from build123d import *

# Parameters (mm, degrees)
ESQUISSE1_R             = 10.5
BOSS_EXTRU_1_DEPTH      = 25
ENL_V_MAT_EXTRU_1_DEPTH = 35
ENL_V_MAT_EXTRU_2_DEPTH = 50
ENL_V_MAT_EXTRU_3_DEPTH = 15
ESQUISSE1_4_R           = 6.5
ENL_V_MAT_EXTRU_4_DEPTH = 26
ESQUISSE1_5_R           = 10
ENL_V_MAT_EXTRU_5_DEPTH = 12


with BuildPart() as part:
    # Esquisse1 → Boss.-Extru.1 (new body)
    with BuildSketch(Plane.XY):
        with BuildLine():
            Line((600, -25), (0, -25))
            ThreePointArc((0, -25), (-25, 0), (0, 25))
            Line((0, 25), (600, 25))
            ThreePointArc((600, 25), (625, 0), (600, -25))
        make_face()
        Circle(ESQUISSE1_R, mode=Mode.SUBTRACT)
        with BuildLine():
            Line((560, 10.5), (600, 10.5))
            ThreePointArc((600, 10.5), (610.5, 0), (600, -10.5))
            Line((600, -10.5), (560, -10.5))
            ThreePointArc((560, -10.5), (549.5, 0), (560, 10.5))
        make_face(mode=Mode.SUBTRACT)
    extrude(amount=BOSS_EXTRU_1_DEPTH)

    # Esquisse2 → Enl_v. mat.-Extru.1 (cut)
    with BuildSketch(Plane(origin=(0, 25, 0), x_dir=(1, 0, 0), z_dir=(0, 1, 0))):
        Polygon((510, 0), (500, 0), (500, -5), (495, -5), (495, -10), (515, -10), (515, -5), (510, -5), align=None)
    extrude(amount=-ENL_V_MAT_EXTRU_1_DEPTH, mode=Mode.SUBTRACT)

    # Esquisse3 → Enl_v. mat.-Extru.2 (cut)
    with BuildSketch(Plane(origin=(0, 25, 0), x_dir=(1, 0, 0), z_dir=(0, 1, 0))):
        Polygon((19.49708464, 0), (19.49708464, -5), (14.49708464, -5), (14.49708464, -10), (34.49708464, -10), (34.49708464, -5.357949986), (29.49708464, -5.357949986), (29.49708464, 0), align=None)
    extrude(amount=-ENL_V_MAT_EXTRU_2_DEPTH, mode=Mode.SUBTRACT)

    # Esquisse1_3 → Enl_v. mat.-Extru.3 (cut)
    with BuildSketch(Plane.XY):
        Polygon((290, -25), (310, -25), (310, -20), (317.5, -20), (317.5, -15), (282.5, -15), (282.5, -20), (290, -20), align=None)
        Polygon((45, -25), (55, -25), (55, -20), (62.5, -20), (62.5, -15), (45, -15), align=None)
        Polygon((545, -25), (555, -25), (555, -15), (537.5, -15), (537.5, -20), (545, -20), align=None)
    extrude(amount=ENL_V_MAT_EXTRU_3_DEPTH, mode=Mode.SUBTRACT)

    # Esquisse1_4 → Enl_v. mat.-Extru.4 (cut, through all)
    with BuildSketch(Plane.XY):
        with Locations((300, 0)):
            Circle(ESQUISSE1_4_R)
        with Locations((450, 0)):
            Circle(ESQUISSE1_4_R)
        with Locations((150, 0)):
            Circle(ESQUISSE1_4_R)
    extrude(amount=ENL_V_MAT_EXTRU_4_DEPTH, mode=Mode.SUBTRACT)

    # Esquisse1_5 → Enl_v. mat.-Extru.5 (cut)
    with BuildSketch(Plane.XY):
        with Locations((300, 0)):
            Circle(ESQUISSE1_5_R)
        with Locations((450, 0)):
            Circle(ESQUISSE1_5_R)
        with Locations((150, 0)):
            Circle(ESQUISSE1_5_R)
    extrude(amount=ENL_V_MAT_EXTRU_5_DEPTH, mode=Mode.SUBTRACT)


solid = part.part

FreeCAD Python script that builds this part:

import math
import FreeCAD as App
import Part
import Sketcher
from FreeCAD import Vector

doc = App.newDocument("Part")
params = doc.addObject("Spreadsheet::Sheet", "Params")
for row, (alias, value) in enumerate([
    ("sketch1_diameter", "21 mm"),
    ("sketch1_radius", "25 mm"),
    ("sketch1_width", "600 mm"),
    ("sketch1_width2", "40 mm"),
    ("pad1_length", "25 mm"),
    ("sketch2_width", "10 mm"),
    ("sketch2_width2", "5 mm"),
    ("pocket1_length", "35 mm"),
    ("sketch3_width", "5 mm"),
    ("sketch3_width2", "20 mm"),
    ("pocket2_length", "50 mm"),
    ("sketch4_width", "20 mm"),
    ("sketch4_width2", "35 mm"),
    ("sketch4_width3", "10 mm"),
    ("pocket3_length", "15 mm"),
    ("sketch5_diameter", "13 mm"),
    ("sketch6_diameter", "20 mm"),
    ("pocket5_length", "12 mm"),
], start=1):
    params.set(f"A{row}", alias)
    params.set(f"B{row}", "=" + value)
    params.setAlias(f"B{row}", alias)

body = doc.addObject("PartDesign::Body", "Body")

# Sketch on XY plane
sketch1 = doc.addObject("Sketcher::SketchObject", "Sketch")
body.addObject(sketch1)
sketch1.AttachmentSupport = (doc.XY_Plane, [""])
sketch1.MapMode = "FlatFace"
sketch1.addGeometry([
    Part.LineSegment(Vector(0, -25, 0), Vector(600, -25, 0)),  # 0
    Part.ArcOfCircle(Part.Circle(Vector(600, 0, 0), Vector(0, 0, 1), 25), math.radians(-90), math.radians(90)),  # 1
    Part.LineSegment(Vector(600, 25, 0), Vector(0, 25, 0)),  # 2
    Part.ArcOfCircle(Part.Circle(Vector(0, 0, 0), Vector(0, 0, 1), 25), math.radians(90), math.radians(270)),  # 3
    Part.LineSegment(Vector(560, 10.5, 0), Vector(600, 10.5, 0)),  # 4
    Part.ArcOfCircle(Part.Circle(Vector(600, 0, 0), Vector(0, 0, 1), 10.5), math.radians(-90), math.radians(90)),  # 5
    Part.LineSegment(Vector(600, -10.5, 0), Vector(560, -10.5, 0)),  # 6
    Part.ArcOfCircle(Part.Circle(Vector(560, 0, 0), Vector(0, 0, 1), 10.5), math.radians(90), math.radians(270)),  # 7
    Part.Circle(Vector(0, 0, 0), Vector(0, 0, 1), 10.5),  # 8
], False)
sketch1.addConstraint([
    Sketcher.Constraint("Tangent", 0, 2, 1, 1),
    Sketcher.Constraint("Tangent", 1, 2, 2, 1),
    Sketcher.Constraint("Tangent", 2, 2, 3, 1),
    Sketcher.Constraint("Tangent", 3, 2, 0, 1),
    Sketcher.Constraint("Tangent", 4, 2, 5, 2),
    Sketcher.Constraint("Tangent", 5, 1, 6, 1),
    Sketcher.Constraint("Tangent", 6, 2, 7, 2),
    Sketcher.Constraint("Tangent", 7, 1, 4, 1),
    Sketcher.Constraint("Horizontal", 0),
    Sketcher.Constraint("Horizontal", 2),
    Sketcher.Constraint("Horizontal", 4),
    Sketcher.Constraint("Horizontal", 6),
    Sketcher.Constraint("Coincident", 3, 3, -1, 1),
    Sketcher.Constraint("Coincident", 8, 3, -1, 1),
    Sketcher.Constraint("Coincident", 5, 3, 1, 3),
    Sketcher.Constraint("Equal", 7, 8),
    Sketcher.Constraint("Diameter", 8, 21.0),
    Sketcher.Constraint("Radius", 1, 25.0),
    Sketcher.Constraint("DistanceX", 0, 1, 0, 2, 600.0),
    Sketcher.Constraint("DistanceX", 4, 1, 4, 2, 40.0),
])
sketch1.setExpression("Constraints[16]", "Params.sketch1_diameter")
sketch1.setExpression("Constraints[17]", "Params.sketch1_radius")
sketch1.setExpression("Constraints[18]", "Params.sketch1_width")
sketch1.setExpression("Constraints[19]", "Params.sketch1_width2")
pad1 = doc.addObject("PartDesign::Pad", "Pad")
body.addObject(pad1)
pad1.Profile = sketch1
pad1.setExpression("Length", "Params.pad1_length")

# Sketch on XZ plane
sketch2 = doc.addObject("Sketcher::SketchObject", "Sketch001")
body.addObject(sketch2)
sketch2.AttachmentSupport = (doc.XZ_Plane, [""])
sketch2.MapMode = "FlatFace"
sketch2.AttachmentOffset = App.Placement(Vector(0, 0, -25), App.Rotation())
sketch2.addGeometry([
    Part.LineSegment(Vector(510, 0, 0), Vector(500, 0, 0)),  # 0
    Part.LineSegment(Vector(500, 0, 0), Vector(500, 5, 0)),  # 1
    Part.LineSegment(Vector(500, 5, 0), Vector(495, 5, 0)),  # 2
    Part.LineSegment(Vector(495, 5, 0), Vector(495, 10, 0)),  # 3
    Part.LineSegment(Vector(495, 10, 0), Vector(515, 10, 0)),  # 4
    Part.LineSegment(Vector(515, 10, 0), Vector(515, 5, 0)),  # 5
    Part.LineSegment(Vector(515, 5, 0), Vector(510, 5, 0)),  # 6
    Part.LineSegment(Vector(510, 5, 0), Vector(510, 0, 0)),  # 7
], False)
sketch2.addConstraint([
    Sketcher.Constraint("Coincident", 0, 2, 1, 1),
    Sketcher.Constraint("Coincident", 1, 2, 2, 1),
    Sketcher.Constraint("Coincident", 2, 2, 3, 1),
    Sketcher.Constraint("Coincident", 3, 2, 4, 1),
    Sketcher.Constraint("Coincident", 4, 2, 5, 1),
    Sketcher.Constraint("Coincident", 5, 2, 6, 1),
    Sketcher.Constraint("Coincident", 6, 2, 7, 1),
    Sketcher.Constraint("Coincident", 7, 2, 0, 1),
    Sketcher.Constraint("Horizontal", 0),
    Sketcher.Constraint("Vertical", 1),
    Sketcher.Constraint("Horizontal", 2),
    Sketcher.Constraint("Vertical", 3),
    Sketcher.Constraint("Horizontal", 4),
    Sketcher.Constraint("Vertical", 5),
    Sketcher.Constraint("Horizontal", 6),
    Sketcher.Constraint("Vertical", 7),
    Sketcher.Constraint("PointOnObject", 0, 2, -1),
    Sketcher.Constraint("Horizontal", 2, 2, 5, 2),
    Sketcher.Constraint("Equal", 2, 6),
    Sketcher.Constraint("Equal", 6, 1),
    Sketcher.Constraint("Equal", 1, 3),
    Sketcher.Constraint("DistanceX", 0, 2, 0, 1, 10.0),
    Sketcher.Constraint("DistanceX", 2, 2, 2, 1, 5.0),
    Sketcher.Constraint("DistanceX", -1, 1, 0, 2, 500.0),
])
sketch2.setExpression("Constraints[21]", "Params.sketch2_width")
sketch2.setExpression("Constraints[22]", "Params.sketch2_width2")
pocket1 = doc.addObject("PartDesign::Pocket", "Pocket")
body.addObject(pocket1)
pocket1.Profile = sketch2
pocket1.setExpression("Length", "Params.pocket1_length")
pocket1.Reversed = True

# Sketch on XZ plane
sketch3 = doc.addObject("Sketcher::SketchObject", "Sketch002")
body.addObject(sketch3)
sketch3.AttachmentSupport = (doc.XZ_Plane, [""])
sketch3.MapMode = "FlatFace"
sketch3.AttachmentOffset = App.Placement(Vector(0, 0, -25), App.Rotation())
sketch3.addGeometry([
    Part.LineSegment(Vector(19.497085, 0, 0), Vector(19.497085, 5, 0)),  # 0
    Part.LineSegment(Vector(19.497085, 5, 0), Vector(14.497085, 5, 0)),  # 1
    Part.LineSegment(Vector(14.497085, 5, 0), Vector(14.497085, 10, 0)),  # 2
    Part.LineSegment(Vector(14.497085, 10, 0), Vector(34.497085, 10, 0)),  # 3
    Part.LineSegment(Vector(34.497085, 10, 0), Vector(34.497085, 5.35795, 0)),  # 4
    Part.LineSegment(Vector(34.497085, 5.35795, 0), Vector(29.497085, 5.35795, 0)),  # 5
    Part.LineSegment(Vector(29.497085, 5.35795, 0), Vector(29.497085, 0, 0)),  # 6
    Part.LineSegment(Vector(29.497085, 0, 0), Vector(19.497085, 0, 0)),  # 7
], False)
sketch3.addConstraint([
    Sketcher.Constraint("Coincident", 0, 2, 1, 1),
    Sketcher.Constraint("Coincident", 1, 2, 2, 1),
    Sketcher.Constraint("Coincident", 2, 2, 3, 1),
    Sketcher.Constraint("Coincident", 3, 2, 4, 1),
    Sketcher.Constraint("Coincident", 4, 2, 5, 1),
    Sketcher.Constraint("Coincident", 5, 2, 6, 1),
    Sketcher.Constraint("Coincident", 6, 2, 7, 1),
    Sketcher.Constraint("Coincident", 7, 2, 0, 1),
    Sketcher.Constraint("Vertical", 0),
    Sketcher.Constraint("Horizontal", 1),
    Sketcher.Constraint("Vertical", 2),
    Sketcher.Constraint("Horizontal", 3),
    Sketcher.Constraint("Vertical", 4),
    Sketcher.Constraint("Horizontal", 5),
    Sketcher.Constraint("Vertical", 6),
    Sketcher.Constraint("Horizontal", 7),
    Sketcher.Constraint("PointOnObject", 6, 2, -1),
    Sketcher.Constraint("Equal", 1, 5),
    Sketcher.Constraint("Equal", 5, 0),
    Sketcher.Constraint("Equal", 0, 2),
    Sketcher.Constraint("DistanceX", 1, 2, 1, 1, 5.0),
    Sketcher.Constraint("DistanceX", 3, 1, 3, 2, 20.0),
    Sketcher.Constraint("DistanceY", 4, 2, 4, 1, 4.64205),
    Sketcher.Constraint("DistanceX", -1, 1, 0, 2, 19.497085),
])
sketch3.setExpression("Constraints[20]", "Params.sketch3_width")
sketch3.setExpression("Constraints[21]", "Params.sketch3_width2")
pocket2 = doc.addObject("PartDesign::Pocket", "Pocket001")
body.addObject(pocket2)
pocket2.Profile = sketch3
pocket2.setExpression("Length", "Params.pocket2_length")
pocket2.Reversed = True

# Sketch on XY plane
sketch4 = doc.addObject("Sketcher::SketchObject", "Sketch003")
body.addObject(sketch4)
sketch4.AttachmentSupport = (doc.XY_Plane, [""])
sketch4.MapMode = "FlatFace"
sketch4.addGeometry([
    Part.LineSegment(Vector(290, -25, 0), Vector(310, -25, 0)),  # 0
    Part.LineSegment(Vector(310, -25, 0), Vector(310, -20, 0)),  # 1
    Part.LineSegment(Vector(310, -20, 0), Vector(317.5, -20, 0)),  # 2
    Part.LineSegment(Vector(317.5, -20, 0), Vector(317.5, -15, 0)),  # 3
    Part.LineSegment(Vector(317.5, -15, 0), Vector(282.5, -15, 0)),  # 4
    Part.LineSegment(Vector(282.5, -15, 0), Vector(282.5, -20, 0)),  # 5
    Part.LineSegment(Vector(282.5, -20, 0), Vector(290, -20, 0)),  # 6
    Part.LineSegment(Vector(290, -20, 0), Vector(290, -25, 0)),  # 7
    Part.LineSegment(Vector(45, -25, 0), Vector(55, -25, 0)),  # 8
    Part.LineSegment(Vector(55, -25, 0), Vector(55, -20, 0)),  # 9
    Part.LineSegment(Vector(55, -20, 0), Vector(62.5, -20, 0)),  # 10
    Part.LineSegment(Vector(62.5, -20, 0), Vector(62.5, -15, 0)),  # 11
    Part.LineSegment(Vector(62.5, -15, 0), Vector(45, -15, 0)),  # 12
    Part.LineSegment(Vector(45, -15, 0), Vector(45, -25, 0)),  # 13
    Part.LineSegment(Vector(545, -25, 0), Vector(555, -25, 0)),  # 14
    Part.LineSegment(Vector(555, -25, 0), Vector(555, -15, 0)),  # 15
    Part.LineSegment(Vector(555, -15, 0), Vector(537.5, -15, 0)),  # 16
    Part.LineSegment(Vector(537.5, -15, 0), Vector(537.5, -20, 0)),  # 17
    Part.LineSegment(Vector(537.5, -20, 0), Vector(545, -20, 0)),  # 18
    Part.LineSegment(Vector(545, -20, 0), Vector(545, -25, 0)),  # 19
], False)
sketch4.addConstraint([
    Sketcher.Constraint("Coincident", 0, 2, 1, 1),
    Sketcher.Constraint("Coincident", 1, 2, 2, 1),
    Sketcher.Constraint("Coincident", 2, 2, 3, 1),
    Sketcher.Constraint("Coincident", 3, 2, 4, 1),
    Sketcher.Constraint("Coincident", 4, 2, 5, 1),
    Sketcher.Constraint("Coincident", 5, 2, 6, 1),
    Sketcher.Constraint("Coincident", 6, 2, 7, 1),
    Sketcher.Constraint("Coincident", 7, 2, 0, 1),
    Sketcher.Constraint("Coincident", 8, 2, 9, 1),
    Sketcher.Constraint("Coincident", 9, 2, 10, 1),
    Sketcher.Constraint("Coincident", 10, 2, 11, 1),
    Sketcher.Constraint("Coincident", 11, 2, 12, 1),
    Sketcher.Constraint("Coincident", 12, 2, 13, 1),
    Sketcher.Constraint("Coincident", 13, 2, 8, 1),
    Sketcher.Constraint("Coincident", 14, 2, 15, 1),
    Sketcher.Constraint("Coincident", 15, 2, 16, 1),
    Sketcher.Constraint("Coincident", 16, 2, 17, 1),
    Sketcher.Constraint("Coincident", 17, 2, 18, 1),
    Sketcher.Constraint("Coincident", 18, 2, 19, 1),
    Sketcher.Constraint("Coincident", 19, 2, 14, 1),
    Sketcher.Constraint("Horizontal", 0),
    Sketcher.Constraint("Vertical", 1),
    Sketcher.Constraint("Horizontal", 2),
    Sketcher.Constraint("Vertical", 3),
    Sketcher.Constraint("Horizontal", 4),
    Sketcher.Constraint("Vertical", 5),
    Sketcher.Constraint("Horizontal", 6),
    Sketcher.Constraint("Vertical", 7),
    Sketcher.Constraint("Horizontal", 8),
    Sketcher.Constraint("Vertical", 9),
    Sketcher.Constraint("Horizontal", 10),
    Sketcher.Constraint("Vertical", 11),
    Sketcher.Constraint("Horizontal", 12),
    Sketcher.Constraint("Vertical", 13),
    Sketcher.Constraint("Horizontal", 14),
    Sketcher.Constraint("Vertical", 15),
    Sketcher.Constraint("Horizontal", 16),
    Sketcher.Constraint("Vertical", 17),
    Sketcher.Constraint("Horizontal", 18),
    Sketcher.Constraint("Vertical", 19),
    Sketcher.Constraint("Horizontal", 2, 2, 5, 2),
    Sketcher.Constraint("Horizontal", 7, 2, 8, 2),
    Sketcher.Constraint("Horizontal", 6, 2, 9, 2),
    Sketcher.Constraint("Horizontal", 4, 2, 11, 2),
    Sketcher.Constraint("Horizontal", 13, 2, 14, 2),
    Sketcher.Constraint("Horizontal", 12, 2, 15, 2),
    Sketcher.Constraint("Horizontal", 10, 2, 17, 2),
    Sketcher.Constraint("Equal", 2, 6),
    Sketcher.Constraint("Equal", 6, 10),
    Sketcher.Constraint("Equal", 8, 14),
    Sketcher.Constraint("Equal", 12, 16),
    Sketcher.Constraint("Equal", 1, 3),
    Sketcher.Constraint("Equal", 14, 13),
    Sketcher.Constraint("DistanceX", 0, 1, 0, 2, 20.0),
    Sketcher.Constraint("DistanceX", 4, 2, 4, 1, 35.0),
    Sketcher.Constraint("DistanceX", 8, 1, 8, 2, 10.0),
    Sketcher.Constraint("DistanceX", -1, 1, 0, 2, 310.0),
    Sketcher.Constraint("DistanceY", 0, 2, -1, 1, 25.0),
    Sketcher.Constraint("DistanceX", -1, 1, 8, 2, 55.0),
    Sketcher.Constraint("DistanceX", -1, 1, 14, 2, 555.0),
])
sketch4.setExpression("Constraints[53]", "Params.sketch4_width")
sketch4.setExpression("Constraints[54]", "Params.sketch4_width2")
sketch4.setExpression("Constraints[55]", "Params.sketch4_width3")
pocket3 = doc.addObject("PartDesign::Pocket", "Pocket002")
body.addObject(pocket3)
pocket3.Profile = sketch4
pocket3.setExpression("Length", "Params.pocket3_length")
pocket3.Reversed = True

# Sketch on XY plane
sketch5 = doc.addObject("Sketcher::SketchObject", "Sketch004")
body.addObject(sketch5)
sketch5.AttachmentSupport = (doc.XY_Plane, [""])
sketch5.MapMode = "FlatFace"
sketch5.addGeometry([
    Part.Circle(Vector(300, 0, 0), Vector(0, 0, 1), 6.5),
    Part.Circle(Vector(450, 0, 0), Vector(0, 0, 1), 6.5),
    Part.Circle(Vector(150, 0, 0), Vector(0, 0, 1), 6.5),
], False)
sketch5.addConstraint([
    Sketcher.Constraint("Equal", 0, 1),
    Sketcher.Constraint("Equal", 1, 2),
    Sketcher.Constraint("PointOnObject", 0, 3, -1),
    Sketcher.Constraint("PointOnObject", 1, 3, -1),
    Sketcher.Constraint("PointOnObject", 2, 3, -1),
    Sketcher.Constraint("Diameter", 0, 13.0),
    Sketcher.Constraint("DistanceX", -1, 1, 0, 3, 300.0),
    Sketcher.Constraint("DistanceX", -1, 1, 1, 3, 450.0),
    Sketcher.Constraint("DistanceX", -1, 1, 2, 3, 150.0),
])
sketch5.setExpression("Constraints[5]", "Params.sketch5_diameter")
pocket4 = doc.addObject("PartDesign::Pocket", "Pocket003")
body.addObject(pocket4)
pocket4.Profile = sketch5
pocket4.Type = "ThroughAll"
pocket4.Reversed = True

# Sketch on XY plane
sketch6 = doc.addObject("Sketcher::SketchObject", "Sketch005")
body.addObject(sketch6)
sketch6.AttachmentSupport = (doc.XY_Plane, [""])
sketch6.MapMode = "FlatFace"
sketch6.addGeometry([
    Part.Circle(Vector(300, 0, 0), Vector(0, 0, 1), 10),
    Part.Circle(Vector(450, 0, 0), Vector(0, 0, 1), 10),
    Part.Circle(Vector(150, 0, 0), Vector(0, 0, 1), 10),
], False)
sketch6.addConstraint([
    Sketcher.Constraint("Equal", 0, 1),
    Sketcher.Constraint("Equal", 1, 2),
    Sketcher.Constraint("PointOnObject", 0, 3, -1),
    Sketcher.Constraint("PointOnObject", 1, 3, -1),
    Sketcher.Constraint("PointOnObject", 2, 3, -1),
    Sketcher.Constraint("Diameter", 0, 20.0),
    Sketcher.Constraint("DistanceX", -1, 1, 0, 3, 300.0),
    Sketcher.Constraint("DistanceX", -1, 1, 1, 3, 450.0),
    Sketcher.Constraint("DistanceX", -1, 1, 2, 3, 150.0),
])
sketch6.setExpression("Constraints[5]", "Params.sketch6_diameter")
pocket5 = doc.addObject("PartDesign::Pocket", "Pocket004")
body.addObject(pocket5)
pocket5.Profile = sketch6
pocket5.setExpression("Length", "Params.pocket5_length")
pocket5.Reversed = True

doc.recompute()
